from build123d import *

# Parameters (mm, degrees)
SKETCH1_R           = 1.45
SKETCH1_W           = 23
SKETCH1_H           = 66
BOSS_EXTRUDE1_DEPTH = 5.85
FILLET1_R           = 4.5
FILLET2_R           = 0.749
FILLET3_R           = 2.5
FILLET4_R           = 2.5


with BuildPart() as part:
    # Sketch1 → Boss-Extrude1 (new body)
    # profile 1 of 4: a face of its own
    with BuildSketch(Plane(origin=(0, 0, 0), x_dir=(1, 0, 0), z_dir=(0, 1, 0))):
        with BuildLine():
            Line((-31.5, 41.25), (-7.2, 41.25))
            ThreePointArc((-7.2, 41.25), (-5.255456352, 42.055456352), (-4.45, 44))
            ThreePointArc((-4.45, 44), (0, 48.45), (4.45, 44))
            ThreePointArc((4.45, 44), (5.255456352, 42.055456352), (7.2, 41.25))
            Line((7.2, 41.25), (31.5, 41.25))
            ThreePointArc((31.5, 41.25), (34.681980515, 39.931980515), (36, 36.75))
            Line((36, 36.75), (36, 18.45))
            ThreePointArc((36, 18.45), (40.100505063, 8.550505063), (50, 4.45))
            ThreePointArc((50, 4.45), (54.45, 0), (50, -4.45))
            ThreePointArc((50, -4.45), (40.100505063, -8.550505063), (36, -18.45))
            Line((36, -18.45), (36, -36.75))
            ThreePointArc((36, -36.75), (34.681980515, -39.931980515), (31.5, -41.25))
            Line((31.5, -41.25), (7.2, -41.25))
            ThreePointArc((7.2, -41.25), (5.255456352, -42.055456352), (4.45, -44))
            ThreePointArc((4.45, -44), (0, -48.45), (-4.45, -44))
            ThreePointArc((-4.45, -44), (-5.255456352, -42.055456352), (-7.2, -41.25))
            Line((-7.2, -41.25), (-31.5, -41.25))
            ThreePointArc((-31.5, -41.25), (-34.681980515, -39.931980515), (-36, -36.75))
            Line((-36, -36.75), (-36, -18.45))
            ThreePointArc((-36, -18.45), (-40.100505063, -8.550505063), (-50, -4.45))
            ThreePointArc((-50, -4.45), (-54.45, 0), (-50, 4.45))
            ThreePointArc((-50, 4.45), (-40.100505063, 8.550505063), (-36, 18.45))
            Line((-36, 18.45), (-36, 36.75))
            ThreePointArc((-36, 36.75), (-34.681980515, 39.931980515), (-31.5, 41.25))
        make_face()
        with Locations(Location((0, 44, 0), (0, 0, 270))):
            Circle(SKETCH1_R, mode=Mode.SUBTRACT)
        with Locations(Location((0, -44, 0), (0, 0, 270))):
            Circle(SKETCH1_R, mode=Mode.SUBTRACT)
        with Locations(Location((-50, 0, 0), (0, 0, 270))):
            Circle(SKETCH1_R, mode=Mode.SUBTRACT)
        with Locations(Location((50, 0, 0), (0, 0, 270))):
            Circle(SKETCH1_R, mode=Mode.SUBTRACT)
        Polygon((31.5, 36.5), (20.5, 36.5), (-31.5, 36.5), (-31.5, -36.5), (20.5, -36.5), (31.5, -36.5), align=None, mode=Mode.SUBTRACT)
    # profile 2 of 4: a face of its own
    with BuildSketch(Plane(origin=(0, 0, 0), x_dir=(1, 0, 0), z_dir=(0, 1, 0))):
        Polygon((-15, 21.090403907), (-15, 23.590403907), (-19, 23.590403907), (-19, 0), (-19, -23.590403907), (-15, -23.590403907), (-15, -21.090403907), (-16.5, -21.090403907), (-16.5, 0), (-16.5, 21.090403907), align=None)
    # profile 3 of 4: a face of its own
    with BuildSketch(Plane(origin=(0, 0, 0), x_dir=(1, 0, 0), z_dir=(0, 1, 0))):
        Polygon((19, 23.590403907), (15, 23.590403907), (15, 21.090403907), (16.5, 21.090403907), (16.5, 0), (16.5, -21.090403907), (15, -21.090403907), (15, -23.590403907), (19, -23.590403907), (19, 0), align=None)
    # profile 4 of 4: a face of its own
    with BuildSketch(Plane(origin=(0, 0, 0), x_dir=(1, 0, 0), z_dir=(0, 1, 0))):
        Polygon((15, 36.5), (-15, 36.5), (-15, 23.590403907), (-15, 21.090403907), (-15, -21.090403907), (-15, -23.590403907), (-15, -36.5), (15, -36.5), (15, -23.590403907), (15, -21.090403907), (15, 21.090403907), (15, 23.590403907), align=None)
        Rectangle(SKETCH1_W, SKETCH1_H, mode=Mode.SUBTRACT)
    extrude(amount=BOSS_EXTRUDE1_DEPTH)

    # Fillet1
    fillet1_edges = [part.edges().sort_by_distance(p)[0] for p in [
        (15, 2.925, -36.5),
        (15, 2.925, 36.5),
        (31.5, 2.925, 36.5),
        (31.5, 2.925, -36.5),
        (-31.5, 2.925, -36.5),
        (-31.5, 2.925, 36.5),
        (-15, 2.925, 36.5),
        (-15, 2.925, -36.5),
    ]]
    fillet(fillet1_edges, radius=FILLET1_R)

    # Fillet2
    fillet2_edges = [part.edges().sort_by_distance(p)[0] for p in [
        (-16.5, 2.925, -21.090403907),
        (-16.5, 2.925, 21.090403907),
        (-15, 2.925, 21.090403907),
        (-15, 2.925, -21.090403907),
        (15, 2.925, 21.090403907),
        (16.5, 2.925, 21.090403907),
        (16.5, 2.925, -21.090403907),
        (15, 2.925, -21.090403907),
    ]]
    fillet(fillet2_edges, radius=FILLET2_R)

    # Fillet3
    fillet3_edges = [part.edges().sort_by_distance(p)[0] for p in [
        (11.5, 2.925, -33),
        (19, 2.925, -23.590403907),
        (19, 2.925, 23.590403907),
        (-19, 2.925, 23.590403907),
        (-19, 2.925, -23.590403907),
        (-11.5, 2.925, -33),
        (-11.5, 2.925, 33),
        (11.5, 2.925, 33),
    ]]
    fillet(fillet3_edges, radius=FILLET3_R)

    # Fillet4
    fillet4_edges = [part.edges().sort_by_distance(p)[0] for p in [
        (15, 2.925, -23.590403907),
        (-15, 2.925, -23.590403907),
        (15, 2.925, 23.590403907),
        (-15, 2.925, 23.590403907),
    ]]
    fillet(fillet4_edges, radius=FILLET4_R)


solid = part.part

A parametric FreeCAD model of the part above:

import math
import FreeCAD as App
import Part
import Sketcher

V = App.Vector
Q = App.Units.Quantity


def edges_at(feature, points):
    """Names of the edges that pass closest to the given points."""
    edges = feature.Shape.Edges
    near = lambda p: min(range(len(edges)), key=lambda i: edges[i].distToShape(Part.Vertex(*p))[0])
    return sorted({f"Edge{near(p) + 1}" for p in points})


def add_polygon(sketch, points):
    """Adds a closed chain of lines whose ends are joined by coincident constraints."""
    first, n = sketch.GeometryCount, len(points)
    for a, b in zip(points, points[1:] + points[:1]):
        sketch.addGeometry(Part.LineSegment(App.Vector(*a, 0), App.Vector(*b, 0)), False)
    for i in range(n):
        sketch.addConstraint(Sketcher.Constraint("Coincident", first + i, 2, first + (i + 1) % n, 1))

doc = App.newDocument("Part")
params = doc.addObject("Spreadsheet::Sheet", "Params")
for row, (alias, value) in enumerate([
    ("sketch1_radius", "14 mm"),
    ("sketch1_diameter", "2.9 mm"),
    ("sketch1_radius2", "4.5 mm"),
    ("sketch1_width", "4 mm"),
    ("sketch1_width2", "23 mm"),
    ("pad1_length", "5.85 mm"),
    ("fillet_radius", "4.5 mm"),
    ("fillet2_radius", "0.749 mm"),
    ("fillet3_radius", "2.5 mm"),
    ("fillet4_radius", "2.5 mm"),
], start=1):
    params.set(f"A{row}", alias)
    params.set(f"B{row}", "=" + value)
    params.setAlias(f"B{row}", alias)

body = doc.addObject("PartDesign::Body", "Body")

sketch1 = doc.addObject("Sketcher::SketchObject", "Sketch")
body.addObject(sketch1)
sketch1.AttachmentSupport = (doc.XZ_Plane, [""])
sketch1.MapMode = "FlatFace"
sketch1.addGeometry(Part.LineSegment(V(-7.2, -41.25, 0), V(-31.5, -41.25, 0)), False)
sketch1.addGeometry(Part.ArcOfCircle(Part.Circle(V(-31.5, -36.75, 0), V(0, 0, 1), 4.5), math.radians(-180), math.radians(-90)), False)
sketch1.addGeometry(Part.LineSegment(V(-36, -36.75, 0), V(-36, -18.45, 0)), False)
sketch1.addGeometry(Part.ArcOfCircle(Part.Circle(V(-50, -18.45, 0), V(0, 0, 1), 14), math.radians(0), math.radians(90)), False)
sketch1.addGeometry(Part.ArcOfCircle(Part.Circle(V(-50, 0, 0), V(0, 0, 1), 4.45), math.radians(90), math.radians(270)), False)
sketch1.addGeometry(Part.ArcOfCircle(Part.Circle(V(-50, 18.45, 0), V(0, 0, 1), 14), math.radians(-90), math.radians(0)), False)
sketch1.addGeometry(Part.LineSegment(V(-36, 18.45, 0), V(-36, 36.75, 0)), False)
sketch1.addGeometry(Part.ArcOfCircle(Part.Circle(V(-31.5, 36.75, 0), V(0, 0, 1), 4.5), math.radians(90), math.radians(180)), False)
sketch1.addGeometry(Part.LineSegment(V(-31.5, 41.25, 0), V(-7.2, 41.25, 0)), False)
sketch1.addGeometry(Part.ArcOfCircle(Part.Circle(V(-7.2, 44, 0), V(0, 0, 1), 2.75), math.radians(-90), math.radians(0)), False)
sketch1.addGeometry(Part.ArcOfCircle(Part.Circle(V(0, 44, 0), V(0, 0, 1), 4.45), math.radians(0), math.radians(180)), False)
sketch1.addGeometry(Part.ArcOfCircle(Part.Circle(V(7.2, 44, 0), V(0, 0, 1), 2.75), math.radians(-180), math.radians(-90)), False)
sketch1.addGeometry(Part.LineSegment(V(7.2, 41.25, 0), V(31.5, 41.25, 0)), False)
sketch1.addGeometry(Part.ArcOfCircle(Part.Circle(V(31.5, 36.75, 0), V(0, 0, 1), 4.5), math.radians(0), math.radians(90)), False)
sketch1.addGeometry(Part.LineSegment(V(36, 36.75, 0), V(36, 18.45, 0)), False)
sketch1.addGeometry(Part.ArcOfCircle(Part.Circle(V(50, 18.45, 0), V(0, 0, 1), 14), math.radians(180), math.radians(270)), False)
sketch1.addGeometry(Part.ArcOfCircle(Part.Circle(V(50, 0, 0), V(0, 0, 1), 4.45), math.radians(-90), math.radians(90)), False)
sketch1.addGeometry(Part.ArcOfCircle(Part.Circle(V(50, -18.45, 0), V(0, 0, 1), 14), math.radians(90), math.radians(180)), False)
sketch1.addGeometry(Part.LineSegment(V(36, -18.45, 0), V(36, -36.75, 0)), False)
sketch1.addGeometry(Part.ArcOfCircle(Part.Circle(V(31.5, -36.75, 0), V(0, 0, 1), 4.5), math.radians(-90), math.radians(0)), False)
sketch1.addGeometry(Part.LineSegment(V(31.5, -41.25, 0), V(7.2, -41.25, 0)), False)
sketch1.addGeometry(Part.ArcOfCircle(Part.Circle(V(7.2, -44, 0), V(0, 0, 1), 2.75), math.radians(90), math.radians(180)), False)
sketch1.addGeometry(Part.ArcOfCircle(Part.Circle(V(0, -44, 0), V(0, 0, 1), 4.45), math.radians(180), math.radians(360)), False)
sketch1.addGeometry(Part.ArcOfCircle(Part.Circle(V(-7.2, -44, 0), V(0, 0, 1), 2.75), math.radians(0), math.radians(90)), False)
sketch1.addGeometry(Part.Circle(V(0, 44, 0), V(0, 0, 1), 1.45), False)
sketch1.addGeometry(Part.Circle(V(50, 0, 0), V(0, 0, 1), 1.45), False)
add_polygon(sketch1, [(31.5, -36.5), (31.5, 36.5), (15, 36.5), (15, 23.590404), (19, 23.590404), (19, -23.590404), (15, -23.590404), (15, -36.5)])
add_polygon(sketch1, [(-31.5, -36.5), (-15, -36.5), (-15, -23.590404), (-19, -23.590404), (-19, 23.590404), (-15, 23.590404), (-15, 36.5), (-31.5, 36.5)])
sketch1.addGeometry(Part.Circle(V(-50, 0, 0), V(0, 0, 1), 1.45), False)
sketch1.addGeometry(Part.Circle(V(0, -44, 0), V(0, 0, 1), 1.45), False)
add_polygon(sketch1, [(-11.5, 33), (-11.5, -33), (11.5, -33), (11.5, 33)])
add_polygon(sketch1, [(15, 21.090404), (15, -21.090404), (16.5, -21.090404), (16.5, 21.090404)])
add_polygon(sketch1, [(-15, -21.090404), (-15, 21.090404), (-16.5, 21.090404), (-16.5, -21.090404)])
sketch1.addConstraint(Sketcher.Constraint("Tangent", 0, 2, 1, 2))
sketch1.addConstraint(Sketcher.Constraint("Tangent", 1, 1, 2, 1))
sketch1.addConstraint(Sketcher.Constraint("Tangent", 2, 2, 3, 1))
sketch1.addConstraint(Sketcher.Constraint("Tangent", 3, 2, 4, 2))
sketch1.addConstraint(Sketcher.Constraint("Tangent", 4, 1, 5, 1))
sketch1.addConstraint(Sketcher.Constraint("Tangent", 5, 2, 6, 1))
sketch1.addConstraint(Sketcher.Constraint("Tangent", 6, 2, 7, 2))
sketch1.addConstraint(Sketcher.Constraint("Tangent", 7, 1, 8, 1))
sketch1.addConstraint(Sketcher.Constraint("Tangent", 8, 2, 9, 1))
sketch1.addConstraint(Sketcher.Constraint("Tangent", 9, 2, 10, 2))
sketch1.addConstraint(Sketcher.Constraint("Tangent", 10, 1, 11, 1))
sketch1.addConstraint(Sketcher.Constraint("Tangent", 11, 2, 12, 1))
sketch1.addConstraint(Sketcher.Constraint("Tangent", 12, 2, 13, 2))
sketch1.addConstraint(Sketcher.Constraint("Tangent", 13, 1, 14, 1))
sketch1.addConstraint(Sketcher.Constraint("Tangent", 14, 2, 15, 1))
sketch1.addConstraint(Sketcher.Constraint("Tangent", 15, 2, 16, 2))
sketch1.addConstraint(Sketcher.Constraint("Tangent", 16, 1, 17, 1))
sketch1.addConstraint(Sketcher.Constraint("Tangent", 17, 2, 18, 1))
sketch1.addConstraint(Sketcher.Constraint("Tangent", 18, 2, 19, 2))
sketch1.addConstraint(Sketcher.Constraint("Tangent", 19, 1, 20, 1))
sketch1.addConstraint(Sketcher.Constraint("Tangent", 20, 2, 21, 1))
sketch1.addConstraint(Sketcher.Constraint("Tangent", 21, 2, 22, 2))
sketch1.addConstraint(Sketcher.Constraint("Tangent", 22, 1, 23, 1))
sketch1.addConstraint(Sketcher.Constraint("Tangent", 23, 2, 0, 1))
sketch1.addConstraint(Sketcher.Constraint("Horizontal", 0))
sketch1.addConstraint(Sketcher.Constraint("Vertical", 2))
sketch1.addConstraint(Sketcher.Constraint("Vertical", 6))
sketch1.addConstraint(Sketcher.Constraint("Horizontal", 8))
sketch1.addConstraint(Sketcher.Constraint("Horizontal", 12))
sketch1.addConstraint(Sketcher.Constraint("Vertical", 14))
sketch1.addConstraint(Sketcher.Constraint("Vertical", 18))
sketch1.addConstraint(Sketcher.Constraint("Horizontal", 20))
sketch1.addConstraint(Sketcher.Constraint("Vertical", 26))
sketch1.addConstraint(Sketcher.Constraint("Horizontal", 27))
sketch1.addConstraint(Sketcher.Constraint("Vertical", 28))
sketch1.addConstraint(Sketcher.Constraint("Horizontal", 29))
sketch1.addConstraint(Sketcher.Constraint("Vertical", 30))
sketch1.addConstraint(Sketcher.Constraint("Horizontal", 31))
sketch1.addConstraint(Sketcher.Constraint("Vertical", 32))
sketch1.addConstraint(Sketcher.Constraint("Horizontal", 33))
sketch1.addConstraint(Sketcher.Constraint("Horizontal", 34))
sketch1.addConstraint(Sketcher.Constraint("Vertical", 35))
sketch1.addConstraint(Sketcher.Constraint("Horizontal", 36))
sketch1.addConstraint(Sketcher.Constraint("Vertical", 37))
sketch1.addConstraint(Sketcher.Constraint("Horizontal", 38))
sketch1.addConstraint(Sketcher.Constraint("Vertical", 39))
sketch1.addConstraint(Sketcher.Constraint("Horizontal", 40))
sketch1.addConstraint(Sketcher.Constraint("Vertical", 41))
sketch1.addConstraint(Sketcher.Constraint("Vertical", 44))
sketch1.addConstraint(Sketcher.Constraint("Horizontal", 45))
sketch1.addConstraint(Sketcher.Constraint("Vertical", 46))
sketch1.addConstraint(Sketcher.Constraint("Horizontal", 47))
sketch1.addConstraint(Sketcher.Constraint("Vertical", 48))
sketch1.addConstraint(Sketcher.Constraint("Horizontal", 49))
sketch1.addConstraint(Sketcher.Constraint("Vertical", 50))
sketch1.addConstraint(Sketcher.Constraint("Horizontal", 51))
sketch1.addConstraint(Sketcher.Constraint("Vertical", 52))
sketch1.addConstraint(Sketcher.Constraint("Horizontal", 53))
sketch1.addConstraint(Sketcher.Constraint("Vertical", 54))
sketch1.addConstraint(Sketcher.Constraint("Horizontal", 55))
sketch1.addConstraint(Sketcher.Constraint("Coincident", 24, 3, 10, 3))
sketch1.addConstraint(Sketcher.Constraint("Coincident", 25, 3, 16, 3))
sketch1.addConstraint(Sketcher.Constraint("Coincident", 42, 3, 4, 3))
sketch1.addConstraint(Sketcher.Constraint("Coincident", 43, 3, 22, 3))
sketch1.addConstraint(Sketcher.Constraint("Equal", 3, 5))
sketch1.addConstraint(Sketcher.Constraint("Equal", 1, 7))
sketch1.addConstraint(Sketcher.Constraint("Equal", 4, 10))
sketch1.addConstraint(Sketcher.Constraint("Equal", 9, 11))
sketch1.addConstraint(Sketcher.Constraint("Equal", 7, 13))
sketch1.addConstraint(Sketcher.Constraint("Equal", 5, 15))
sketch1.addConstraint(Sketcher.Constraint("Equal", 10, 16))
sketch1.addConstraint(Sketcher.Constraint("Equal", 15, 17))
sketch1.addConstraint(Sketcher.Constraint("Equal", 13, 19))
sketch1.addConstraint(Sketcher.Constraint("Equal", 11, 21))
sketch1.addConstraint(Sketcher.Constraint("Equal", 16, 22))
sketch1.addConstraint(Sketcher.Constraint("Equal", 21, 23))
sketch1.addConstraint(Sketcher.Constraint("Equal", 24, 25))
sketch1.addConstraint(Sketcher.Constraint("Equal", 25, 42))
sketch1.addConstraint(Sketcher.Constraint("Equal", 42, 43))
sketch1.addConstraint(Sketcher.Constraint("Symmetric", 1, 3, 13, 3, -1, 1))
sketch1.addConstraint(Sketcher.Constraint("Symmetric", 4, 3, 16, 3, -1, 1))
sketch1.addConstraint(Sketcher.Constraint("Symmetric", 7, 3, 19, 3, -1, 1))
sketch1.addConstraint(Sketcher.Constraint("Symmetric", 10, 3, 22, 3, -1, 1))
sketch1.addConstraint(Sketcher.Constraint("Symmetric", 27, 2, 34, 2, -1, 1))
sketch1.addConstraint(Sketcher.Constraint("Symmetric", 29, 2, 36, 2, -1, 1))
sketch1.addConstraint(Sketcher.Constraint("Symmetric", 31, 2, 38, 2, -1, 1))
sketch1.addConstraint(Sketcher.Constraint("Symmetric", 33, 2, 40, 2, -1, 1))
sketch1.addConstraint(Sketcher.Constraint("Symmetric", 44, 2, 46, 2, -1, 1))
sketch1.addConstraint(Sketcher.Constraint("Symmetric", 48, 2, 52, 2, -1, 1))
sketch1.addConstraint(Sketcher.Constraint("Symmetric", 50, 2, 54, 2, -1, 1))
sketch1.addConstraint(Sketcher.Constraint("Symmetric", 9, 3, 11, 3, -2))
sketch1.addConstraint(Sketcher.Constraint("Symmetric", 5, 3, 15, 3, -2))
sketch1.addConstraint(Sketcher.Constraint("Symmetric", 32, 2, 34, 2, -2))
sketch1.addConstraint(Sketcher.Constraint("Horizontal", 9, 3, 10, 3))
sketch1.addConstraint(Sketcher.Constraint("Horizontal", 31, 2, 35, 2))
sketch1.addConstraint(Sketcher.Constraint("Horizontal", 51, 2, 52, 2))
sketch1.addConstraint(Sketcher.Constraint("Vertical", 3, 3, 4, 3))
sketch1.addConstraint(Sketcher.Constraint("Vertical", 19, 1, 26, 2))
sketch1.addConstraint(Sketcher.Constraint("Vertical", 32, 2, 48, 2))
sketch1.addConstraint(Sketcher.Constraint("Radius", 3, Q("14 mm")))
sketch1.addConstraint(Sketcher.Constraint("Diameter", 24, Q("2.9 mm")))
sketch1.addConstraint(Sketcher.Constraint("Radius", 1, Q("4.5 mm")))
sketch1.addConstraint(Sketcher.Constraint("DistanceX", 29, 1, 29, 2, Q("4 mm")))
sketch1.addConstraint(Sketcher.Constraint("DistanceX", 45, 1, 45, 2, Q("23 mm")))
sketch1.addConstraint(Sketcher.Constraint("DistanceY", 26, 1, 26, 2, Q("73 mm")))
sketch1.addConstraint(Sketcher.Constraint("DistanceY", 44, 2, 44, 1, Q("66 mm")))
sketch1.addConstraint(Sketcher.Constraint("Radius", 4, Q("4.45 mm")))
sketch1.addConstraint(Sketcher.Constraint("Radius", 9, Q("2.75 mm")))
sketch1.addConstraint(Sketcher.Constraint("DistanceX", 0, 2, 0, 1, Q("24.3 mm")))
sketch1.addConstraint(Sketcher.Constraint("DistanceX", 27, 2, 27, 1, Q("16.5 mm")))
sketch1.addConstraint(Sketcher.Constraint("DistanceX", 49, 1, 49, 2, Q("1.5 mm")))
sketch1.addConstraint(Sketcher.Constraint("DistanceY", 2, 1, 2, 2, Q("18.3 mm")))
sketch1.addConstraint(Sketcher.Constraint("DistanceY", 28, 2, 28, 1, Q("12.909596 mm")))
sketch1.addConstraint(Sketcher.Constraint("DistanceY", 48, 2, 48, 1, Q("42.180808 mm")))
sketch1.setExpression("Constraints[127]", "Params.sketch1_radius")
sketch1.setExpression("Constraints[128]", "Params.sketch1_diameter")
sketch1.setExpression("Constraints[129]", "Params.sketch1_radius2")
sketch1.setExpression("Constraints[130]", "Params.sketch1_width")
sketch1.setExpression("Constraints[131]", "Params.sketch1_width2")
pad1 = doc.addObject("PartDesign::Pad", "Pad")
body.addObject(pad1)
pad1.Profile = sketch1
pad1.setExpression("Length", "Params.pad1_length")
pad1.Reversed = True
doc.recompute()

fillet = doc.addObject("PartDesign::Fillet", "Fillet")
body.addObject(fillet)
fillet.Base = (pad1, edges_at(pad1, [
    (15, 2.925, -36.5),
    (15, 2.925, 36.5),
    (31.5, 2.925, 36.5),
    (31.5, 2.925, -36.5),
    (-31.5, 2.925, -36.5),
    (-31.5, 2.925, 36.5),
    (-15, 2.925, 36.5),
    (-15, 2.925, -36.5),
]))
fillet.setExpression("Radius", "Params.fillet_radius")
doc.recompute()

fillet2 = doc.addObject("PartDesign::Fillet", "Fillet001")
body.addObject(fillet2)
fillet2.Base = (fillet, edges_at(fillet, [
    (-16.5, 2.925, -21.09),
    (-16.5, 2.925, 21.09),
    (-15, 2.925, 21.09),
    (-15, 2.925, -21.09),
    (15, 2.925, 21.09),
    (16.5, 2.925, 21.09),
    (16.5, 2.925, -21.09),
    (15, 2.925, -21.09),
]))
fillet2.setExpression("Radius", "Params.fillet2_radius")
doc.recompute()

fillet3 = doc.addObject("PartDesign::Fillet", "Fillet002")
body.addObject(fillet3)
fillet3.Base = (fillet2, edges_at(fillet2, [
    (11.5, 2.925, -33),
    (19, 2.925, -23.59),
    (19, 2.925, 23.59),
    (-19, 2.925, 23.59),
    (-19, 2.925, -23.59),
    (-11.5, 2.925, -33),
    (-11.5, 2.925, 33),
    (11.5, 2.925, 33),
]))
fillet3.setExpression("Radius", "Params.fillet3_radius")
doc.recompute()

fillet4 = doc.addObject("PartDesign::Fillet", "Fillet003")
body.addObject(fillet4)
fillet4.Base = (fillet3, edges_at(fillet3, [
    (15, 2.925, -23.59),
    (-15, 2.925, -23.59),
    (15, 2.925, 23.59),
    (-15, 2.925, 23.59),
]))
fillet4.setExpression("Radius", "Params.fillet4_radius")

doc.recompute()
